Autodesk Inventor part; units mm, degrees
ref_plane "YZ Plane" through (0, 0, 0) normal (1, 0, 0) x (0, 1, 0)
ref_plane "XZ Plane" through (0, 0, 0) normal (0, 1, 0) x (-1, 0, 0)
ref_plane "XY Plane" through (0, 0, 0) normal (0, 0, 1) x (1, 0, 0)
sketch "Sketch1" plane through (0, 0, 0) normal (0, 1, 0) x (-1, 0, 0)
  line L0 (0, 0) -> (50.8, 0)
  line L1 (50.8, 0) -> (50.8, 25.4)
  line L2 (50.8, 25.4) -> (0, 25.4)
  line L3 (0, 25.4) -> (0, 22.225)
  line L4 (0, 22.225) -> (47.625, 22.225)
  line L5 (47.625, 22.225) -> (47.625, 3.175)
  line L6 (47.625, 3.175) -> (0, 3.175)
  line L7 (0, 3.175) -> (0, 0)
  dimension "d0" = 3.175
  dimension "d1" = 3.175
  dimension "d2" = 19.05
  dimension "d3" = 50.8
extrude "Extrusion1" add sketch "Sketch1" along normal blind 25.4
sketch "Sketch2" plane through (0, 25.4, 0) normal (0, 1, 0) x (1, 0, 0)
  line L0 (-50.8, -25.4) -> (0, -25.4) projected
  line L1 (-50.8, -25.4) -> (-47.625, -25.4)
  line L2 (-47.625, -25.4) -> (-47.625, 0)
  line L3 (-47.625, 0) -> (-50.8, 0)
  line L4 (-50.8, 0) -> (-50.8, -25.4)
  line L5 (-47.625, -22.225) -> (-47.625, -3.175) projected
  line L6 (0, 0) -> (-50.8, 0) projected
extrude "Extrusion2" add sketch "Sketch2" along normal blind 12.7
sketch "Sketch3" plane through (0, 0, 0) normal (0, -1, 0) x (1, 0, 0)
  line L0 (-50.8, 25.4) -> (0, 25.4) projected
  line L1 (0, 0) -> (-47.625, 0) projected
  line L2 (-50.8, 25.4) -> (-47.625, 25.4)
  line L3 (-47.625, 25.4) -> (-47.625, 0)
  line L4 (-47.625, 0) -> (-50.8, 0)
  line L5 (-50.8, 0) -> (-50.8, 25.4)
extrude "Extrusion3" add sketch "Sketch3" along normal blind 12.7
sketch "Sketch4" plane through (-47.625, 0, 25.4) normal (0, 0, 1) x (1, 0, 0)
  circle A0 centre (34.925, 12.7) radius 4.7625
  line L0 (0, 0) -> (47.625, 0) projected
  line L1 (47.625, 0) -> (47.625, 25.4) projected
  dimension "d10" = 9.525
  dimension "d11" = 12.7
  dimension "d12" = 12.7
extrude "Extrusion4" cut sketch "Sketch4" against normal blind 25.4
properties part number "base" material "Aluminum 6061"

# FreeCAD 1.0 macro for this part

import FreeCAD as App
import Part
import Sketcher

V = App.Vector
Q = App.Units.Quantity


def add_polygon(sketch, points):
    """Adds a closed chain of lines whose ends are joined by coincident constraints."""
    first, n = sketch.GeometryCount, len(points)
    for a, b in zip(points, points[1:] + points[:1]):
        sketch.addGeometry(Part.LineSegment(App.Vector(*a, 0), App.Vector(*b, 0)), False)
    for i in range(n):
        sketch.addConstraint(Sketcher.Constraint("Coincident", first + i, 2, first + (i + 1) % n, 1))

doc = App.newDocument("Part")
body = doc.addObject("PartDesign::Body", "Body")

# Sketch on XZ plane
sketch1 = body.newObject("Sketcher::SketchObject", "Sketch")
sketch1.AttachmentSupport = (doc.getObject("XZ_Plane"), [""])
sketch1.MapMode = "FlatFace"
add_polygon(sketch1, [(0, 3.2), (0, 0), (-50.8, 0), (-50.8, 25.4), (0, 25.4), (0, 22.2), (-47.6, 22.2), (-47.6, 3.2)])  # lines 0-7
sketch1.addConstraint([
    Sketcher.Constraint("Vertical", 0),
    Sketcher.Constraint("Horizontal", 1),
    Sketcher.Constraint("Vertical", 2),
    Sketcher.Constraint("Horizontal", 3),
    Sketcher.Constraint("Vertical", 4),
    Sketcher.Constraint("Horizontal", 5),
    Sketcher.Constraint("Vertical", 6),
    Sketcher.Constraint("Horizontal", 7),
    Sketcher.Constraint("Coincident", 0, 2, -1, 1),
    Sketcher.Constraint("PointOnObject", 3, 2, -2),
    Sketcher.Constraint("Equal", 0, 4),
    Sketcher.Constraint("DistanceX", 1, 2, 1, 1, Q("2 in")),
    Sketcher.Constraint("DistanceY", 6, 2, 6, 1, Q("0.75 in")),
    Sketcher.Constraint("DistanceY", 0, 2, 0, 1, Q("0.125 in")),
    Sketcher.Constraint("DistanceX", 2, 2, 5, 2, Q("0.125 in")),
])
pad1 = body.newObject("PartDesign::Pad", "Pad")
pad1.Profile = sketch1
pad1.Length = Q("1 in")
pad1.Reversed = True

# Sketch on XZ plane
sketch2 = body.newObject("Sketcher::SketchObject", "Sketch001")
sketch2.AttachmentSupport = (doc.getObject("XZ_Plane"), [""])
sketch2.MapMode = "FlatFace"
sketch2.AttachmentOffset = App.Placement(V(0, 0, -1 * 25.4), App.Rotation())
add_polygon(sketch2, [(-50.8, 0), (-50.8, 25.4), (-47.6, 25.4), (-47.6, 0)])  # lines 0-3
sketch2.addConstraint([
    Sketcher.Constraint("Vertical", 0),
    Sketcher.Constraint("Horizontal", 1),
    Sketcher.Constraint("Vertical", 2),
    Sketcher.Constraint("Horizontal", 3),
    Sketcher.Constraint("PointOnObject", 2, 2, -1),
    Sketcher.Constraint("DistanceY", 0, 1, 0, 2, Q("1 in")),
    Sketcher.Constraint("DistanceX", 0, 2, -1, 1, Q("2 in")),
    Sketcher.Constraint("DistanceX", 1, 1, 1, 2, Q("0.125 in")),
])
pad2 = body.newObject("PartDesign::Pad", "Pad001")
pad2.Profile = sketch2
pad2.Length = Q("0.5 in")
pad2.Reversed = True

# Sketch on XZ plane
sketch3 = body.newObject("Sketcher::SketchObject", "Sketch002")
sketch3.AttachmentSupport = (doc.getObject("XZ_Plane"), [""])
sketch3.MapMode = "FlatFace"
add_polygon(sketch3, [(-47.6, 25.4), (-50.8, 25.4), (-50.8, 0), (-47.6, 0)])  # lines 0-3
sketch3.addConstraint([
    Sketcher.Constraint("Horizontal", 0),
    Sketcher.Constraint("Vertical", 1),
    Sketcher.Constraint("Horizontal", 2),
    Sketcher.Constraint("Vertical", 3),
    Sketcher.Constraint("PointOnObject", 1, 2, -1),
    Sketcher.Constraint("DistanceY", 1, 2, 1, 1, Q("1 in")),
    Sketcher.Constraint("DistanceX", 0, 2, -1, 1, Q("2 in")),
    Sketcher.Constraint("DistanceX", 0, 2, 0, 1, Q("0.125 in")),
])
pad3 = body.newObject("PartDesign::Pad", "Pad002")
pad3.Profile = sketch3
pad3.Length = Q("0.5 in")

# Sketch on XY plane
sketch4 = body.newObject("Sketcher::SketchObject", "Sketch003")
sketch4.AttachmentSupport = (doc.getObject("XY_Plane"), [""])
sketch4.MapMode = "FlatFace"
sketch4.AttachmentOffset = App.Placement(V(0, 0, 1 * 25.4), App.Rotation())
sketch4.addGeometry(Part.Circle(V(-12.7, 12.7, 0), V(0, 0, 1), 4.8), False)
sketch4.addConstraint([
    Sketcher.Constraint("Diameter", 0, Q("0.375 in")),
    Sketcher.Constraint("DistanceX", 0, 3, -1, 1, Q("0.5 in")),
    Sketcher.Constraint("DistanceY", -1, 1, 0, 3, Q("0.5 in")),
])
pocket1 = body.newObject("PartDesign::Pocket", "Pocket")
pocket1.Profile = sketch4
pocket1.Length = Q("1 in")

doc.recompute()
